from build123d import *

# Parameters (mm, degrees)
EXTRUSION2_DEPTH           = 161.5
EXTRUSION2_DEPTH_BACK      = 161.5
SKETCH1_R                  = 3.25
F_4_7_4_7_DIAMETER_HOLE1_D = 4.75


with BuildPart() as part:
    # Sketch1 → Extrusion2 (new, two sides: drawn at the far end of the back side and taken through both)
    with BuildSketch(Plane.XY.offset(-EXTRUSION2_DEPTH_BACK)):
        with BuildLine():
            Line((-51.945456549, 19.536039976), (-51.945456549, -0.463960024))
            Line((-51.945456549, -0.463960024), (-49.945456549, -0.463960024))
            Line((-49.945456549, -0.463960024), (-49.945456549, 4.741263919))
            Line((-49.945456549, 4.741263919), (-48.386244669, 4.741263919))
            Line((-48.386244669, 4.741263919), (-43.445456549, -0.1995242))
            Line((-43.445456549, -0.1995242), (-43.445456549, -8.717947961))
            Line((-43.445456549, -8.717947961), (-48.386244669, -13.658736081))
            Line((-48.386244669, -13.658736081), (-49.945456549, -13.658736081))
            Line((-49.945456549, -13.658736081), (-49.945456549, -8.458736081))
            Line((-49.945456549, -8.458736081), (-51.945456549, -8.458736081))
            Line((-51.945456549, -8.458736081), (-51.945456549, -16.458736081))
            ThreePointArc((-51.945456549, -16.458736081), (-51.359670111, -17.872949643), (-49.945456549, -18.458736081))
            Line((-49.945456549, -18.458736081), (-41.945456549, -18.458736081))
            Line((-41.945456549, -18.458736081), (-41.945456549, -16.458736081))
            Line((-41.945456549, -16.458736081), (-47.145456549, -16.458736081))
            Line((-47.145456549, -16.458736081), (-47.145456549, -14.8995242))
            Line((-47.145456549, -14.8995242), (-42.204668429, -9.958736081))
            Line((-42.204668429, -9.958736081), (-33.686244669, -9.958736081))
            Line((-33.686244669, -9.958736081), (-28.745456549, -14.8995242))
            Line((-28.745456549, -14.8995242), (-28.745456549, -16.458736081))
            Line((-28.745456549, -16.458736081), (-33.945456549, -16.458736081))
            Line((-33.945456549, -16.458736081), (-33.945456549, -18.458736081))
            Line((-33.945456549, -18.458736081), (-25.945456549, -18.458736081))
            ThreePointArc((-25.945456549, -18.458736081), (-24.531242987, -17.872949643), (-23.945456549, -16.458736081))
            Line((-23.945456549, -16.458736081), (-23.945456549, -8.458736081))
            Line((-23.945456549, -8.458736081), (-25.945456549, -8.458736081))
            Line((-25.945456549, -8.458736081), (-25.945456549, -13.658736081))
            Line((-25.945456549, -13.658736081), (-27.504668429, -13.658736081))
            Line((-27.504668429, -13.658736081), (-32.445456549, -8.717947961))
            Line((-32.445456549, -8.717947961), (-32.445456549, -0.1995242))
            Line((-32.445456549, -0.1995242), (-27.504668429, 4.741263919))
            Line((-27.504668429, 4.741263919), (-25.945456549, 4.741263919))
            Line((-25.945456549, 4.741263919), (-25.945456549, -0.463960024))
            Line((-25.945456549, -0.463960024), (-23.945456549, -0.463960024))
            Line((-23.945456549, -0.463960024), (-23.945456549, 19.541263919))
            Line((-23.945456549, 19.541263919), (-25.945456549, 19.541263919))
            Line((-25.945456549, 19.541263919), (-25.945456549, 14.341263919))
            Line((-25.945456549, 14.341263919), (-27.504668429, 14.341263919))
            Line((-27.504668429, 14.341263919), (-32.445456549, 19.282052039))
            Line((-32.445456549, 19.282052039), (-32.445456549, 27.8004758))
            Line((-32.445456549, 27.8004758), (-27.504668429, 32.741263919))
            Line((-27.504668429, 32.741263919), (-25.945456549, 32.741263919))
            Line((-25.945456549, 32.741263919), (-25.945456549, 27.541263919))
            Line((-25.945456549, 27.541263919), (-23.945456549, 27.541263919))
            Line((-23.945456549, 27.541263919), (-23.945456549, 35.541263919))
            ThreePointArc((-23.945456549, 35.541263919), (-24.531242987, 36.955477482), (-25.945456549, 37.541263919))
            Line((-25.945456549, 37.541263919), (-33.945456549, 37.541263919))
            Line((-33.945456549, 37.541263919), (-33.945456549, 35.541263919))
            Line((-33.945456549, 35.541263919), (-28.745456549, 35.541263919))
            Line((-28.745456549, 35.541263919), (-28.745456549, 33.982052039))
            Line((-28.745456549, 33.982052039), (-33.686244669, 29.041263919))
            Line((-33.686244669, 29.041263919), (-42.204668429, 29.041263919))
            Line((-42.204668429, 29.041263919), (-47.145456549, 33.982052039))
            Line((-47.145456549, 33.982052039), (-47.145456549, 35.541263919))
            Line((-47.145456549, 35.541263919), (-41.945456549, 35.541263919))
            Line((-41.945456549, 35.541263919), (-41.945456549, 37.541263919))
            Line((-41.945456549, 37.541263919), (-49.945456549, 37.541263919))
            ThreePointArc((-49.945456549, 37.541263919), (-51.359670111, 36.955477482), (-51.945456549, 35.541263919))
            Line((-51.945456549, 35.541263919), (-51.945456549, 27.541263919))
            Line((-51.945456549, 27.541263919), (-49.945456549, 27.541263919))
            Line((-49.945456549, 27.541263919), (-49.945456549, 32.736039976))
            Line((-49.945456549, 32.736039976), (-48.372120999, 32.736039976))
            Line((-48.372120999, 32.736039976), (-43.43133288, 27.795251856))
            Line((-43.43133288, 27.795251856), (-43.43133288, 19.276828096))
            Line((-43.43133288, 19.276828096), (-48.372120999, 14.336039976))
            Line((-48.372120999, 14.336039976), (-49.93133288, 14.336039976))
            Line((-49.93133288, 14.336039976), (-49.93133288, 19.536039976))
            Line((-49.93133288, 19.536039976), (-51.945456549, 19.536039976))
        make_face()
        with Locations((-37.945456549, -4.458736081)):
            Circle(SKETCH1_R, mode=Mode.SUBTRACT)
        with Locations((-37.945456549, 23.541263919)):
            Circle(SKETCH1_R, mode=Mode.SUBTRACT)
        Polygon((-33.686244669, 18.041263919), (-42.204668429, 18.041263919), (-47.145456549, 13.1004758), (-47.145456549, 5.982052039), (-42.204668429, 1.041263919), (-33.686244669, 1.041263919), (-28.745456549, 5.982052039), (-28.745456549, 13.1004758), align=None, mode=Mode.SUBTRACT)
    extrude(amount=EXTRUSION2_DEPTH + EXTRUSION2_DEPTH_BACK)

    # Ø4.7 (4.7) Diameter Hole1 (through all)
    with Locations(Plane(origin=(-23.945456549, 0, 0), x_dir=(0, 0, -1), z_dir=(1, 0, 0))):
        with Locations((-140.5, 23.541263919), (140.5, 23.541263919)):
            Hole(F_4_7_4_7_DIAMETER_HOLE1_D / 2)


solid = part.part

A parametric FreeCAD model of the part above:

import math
import FreeCAD as App
import Part
import Sketcher

V = App.Vector
Q = App.Units.Quantity

doc = App.newDocument("Part")
body = doc.addObject("PartDesign::Body", "Body")

# Sketch on XY plane
sketch1 = doc.addObject("Sketcher::SketchObject", "Sketch")
body.addObject(sketch1)
sketch1.AttachmentSupport = (doc.XY_Plane, [""])
sketch1.MapMode = "FlatFace"
sketch1.addGeometry([
    Part.LineSegment(V(-51.9, 19.5, 0), V(-51.9, -0.5, 0)),  # 0
    Part.LineSegment(V(-51.9, -0.5, 0), V(-49.9, -0.5, 0)),  # 1
    Part.LineSegment(V(-49.9, -0.5, 0), V(-49.9, 4.7, 0)),  # 2
    Part.LineSegment(V(-49.9, 4.7, 0), V(-48.4, 4.7, 0)),  # 3
    Part.LineSegment(V(-48.4, 4.7, 0), V(-43.4, -0.2, 0)),  # 4
    Part.LineSegment(V(-43.4, -0.2, 0), V(-43.4, -8.7, 0)),  # 5
    Part.LineSegment(V(-43.4, -8.7, 0), V(-48.4, -13.7, 0)),  # 6
    Part.LineSegment(V(-48.4, -13.7, 0), V(-49.9, -13.7, 0)),  # 7
    Part.LineSegment(V(-49.9, -13.7, 0), V(-49.9, -8.5, 0)),  # 8
    Part.LineSegment(V(-49.9, -8.5, 0), V(-51.9, -8.5, 0)),  # 9
    Part.LineSegment(V(-51.9, -8.5, 0), V(-51.9, -16.5, 0)),  # 10
    Part.ArcOfCircle(Part.Circle(V(-49.9, -16.5, 0), V(0, 0, 1), 2), math.radians(-180), math.radians(-90)),  # 11
    Part.LineSegment(V(-49.9, -18.5, 0), V(-41.9, -18.5, 0)),  # 12
    Part.LineSegment(V(-41.9, -18.5, 0), V(-41.9, -16.5, 0)),  # 13
    Part.LineSegment(V(-41.9, -16.5, 0), V(-47.1, -16.5, 0)),  # 14
    Part.LineSegment(V(-47.1, -16.5, 0), V(-47.1, -14.9, 0)),  # 15
    Part.LineSegment(V(-47.1, -14.9, 0), V(-42.2, -10, 0)),  # 16
    Part.LineSegment(V(-42.2, -10, 0), V(-33.7, -10, 0)),  # 17
    Part.LineSegment(V(-33.7, -10, 0), V(-28.7, -14.9, 0)),  # 18
    Part.LineSegment(V(-28.7, -14.9, 0), V(-28.7, -16.5, 0)),  # 19
    Part.LineSegment(V(-28.7, -16.5, 0), V(-33.9, -16.5, 0)),  # 20
    Part.LineSegment(V(-33.9, -16.5, 0), V(-33.9, -18.5, 0)),  # 21
    Part.LineSegment(V(-33.9, -18.5, 0), V(-25.9, -18.5, 0)),  # 22
    Part.ArcOfCircle(Part.Circle(V(-25.9, -16.5, 0), V(0, 0, 1), 2), math.radians(-90), math.radians(0)),  # 23
    Part.LineSegment(V(-23.9, -16.5, 0), V(-23.9, -8.5, 0)),  # 24
    Part.LineSegment(V(-23.9, -8.5, 0), V(-25.9, -8.5, 0)),  # 25
    Part.LineSegment(V(-25.9, -8.5, 0), V(-25.9, -13.7, 0)),  # 26
    Part.LineSegment(V(-25.9, -13.7, 0), V(-27.5, -13.7, 0)),  # 27
    Part.LineSegment(V(-27.5, -13.7, 0), V(-32.4, -8.7, 0)),  # 28
    Part.LineSegment(V(-32.4, -8.7, 0), V(-32.4, -0.2, 0)),  # 29
    Part.LineSegment(V(-32.4, -0.2, 0), V(-27.5, 4.7, 0)),  # 30
    Part.LineSegment(V(-27.5, 4.7, 0), V(-25.9, 4.7, 0)),  # 31
    Part.LineSegment(V(-25.9, 4.7, 0), V(-25.9, -0.5, 0)),  # 32
    Part.LineSegment(V(-25.9, -0.5, 0), V(-23.9, -0.5, 0)),  # 33
    Part.LineSegment(V(-23.9, -0.5, 0), V(-23.9, 19.5, 0)),  # 34
    Part.LineSegment(V(-23.9, 19.5, 0), V(-25.9, 19.5, 0)),  # 35
    Part.LineSegment(V(-25.9, 19.5, 0), V(-25.9, 14.3, 0)),  # 36
    Part.LineSegment(V(-25.9, 14.3, 0), V(-27.5, 14.3, 0)),  # 37
    Part.LineSegment(V(-27.5, 14.3, 0), V(-32.4, 19.3, 0)),  # 38
    Part.LineSegment(V(-32.4, 19.3, 0), V(-32.4, 27.8, 0)),  # 39
    Part.LineSegment(V(-32.4, 27.8, 0), V(-27.5, 32.7, 0)),  # 40
    Part.LineSegment(V(-27.5, 32.7, 0), V(-25.9, 32.7, 0)),  # 41
    Part.LineSegment(V(-25.9, 32.7, 0), V(-25.9, 27.5, 0)),  # 42
    Part.LineSegment(V(-25.9, 27.5, 0), V(-23.9, 27.5, 0)),  # 43
    Part.LineSegment(V(-23.9, 27.5, 0), V(-23.9, 35.5, 0)),  # 44
    Part.ArcOfCircle(Part.Circle(V(-25.9, 35.5, 0), V(0, 0, 1), 2), math.radians(0), math.radians(90)),  # 45
    Part.LineSegment(V(-25.9, 37.5, 0), V(-33.9, 37.5, 0)),  # 46
    Part.LineSegment(V(-33.9, 37.5, 0), V(-33.9, 35.5, 0)),  # 47
    Part.LineSegment(V(-33.9, 35.5, 0), V(-28.7, 35.5, 0)),  # 48
    Part.LineSegment(V(-28.7, 35.5, 0), V(-28.7, 34, 0)),  # 49
    Part.LineSegment(V(-28.7, 34, 0), V(-33.7, 29, 0)),  # 50
    Part.LineSegment(V(-33.7, 29, 0), V(-42.2, 29, 0)),  # 51
    Part.LineSegment(V(-42.2, 29, 0), V(-47.1, 34, 0)),  # 52
    Part.LineSegment(V(-47.1, 34, 0), V(-47.1, 35.5, 0)),  # 53
    Part.LineSegment(V(-47.1, 35.5, 0), V(-41.9, 35.5, 0)),  # 54
    Part.LineSegment(V(-41.9, 35.5, 0), V(-41.9, 37.5, 0)),  # 55
    Part.LineSegment(V(-41.9, 37.5, 0), V(-49.9, 37.5, 0)),  # 56
    Part.ArcOfCircle(Part.Circle(V(-49.9, 35.5, 0), V(0, 0, 1), 2), math.radians(90), math.radians(180)),  # 57
    Part.LineSegment(V(-51.9, 35.5, 0), V(-51.9, 27.5, 0)),  # 58
    Part.LineSegment(V(-51.9, 27.5, 0), V(-49.9, 27.5, 0)),  # 59
    Part.LineSegment(V(-49.9, 27.5, 0), V(-49.9, 32.7, 0)),  # 60
    Part.LineSegment(V(-49.9, 32.7, 0), V(-48.4, 32.7, 0)),  # 61
    Part.LineSegment(V(-48.4, 32.7, 0), V(-43.4, 27.8, 0)),  # 62
    Part.LineSegment(V(-43.4, 27.8, 0), V(-43.4, 19.3, 0)),  # 63
    Part.LineSegment(V(-43.4, 19.3, 0), V(-48.4, 14.3, 0)),  # 64
    Part.LineSegment(V(-48.4, 14.3, 0), V(-49.9, 14.3, 0)),  # 65
    Part.LineSegment(V(-49.9, 14.3, 0), V(-49.9, 19.5, 0)),  # 66
    Part.LineSegment(V(-49.9, 19.5, 0), V(-51.9, 19.5, 0)),  # 67
    Part.Circle(V(-37.9, -4.5, 0), V(0, 0, 1), 3.2),  # 68
    Part.LineSegment(V(-42.2, 18, 0), V(-33.7, 18, 0)),  # 69
    Part.LineSegment(V(-33.7, 18, 0), V(-28.7, 13.1, 0)),  # 70
    Part.LineSegment(V(-28.7, 13.1, 0), V(-28.7, 6, 0)),  # 71
    Part.LineSegment(V(-28.7, 6, 0), V(-33.7, 1, 0)),  # 72
    Part.LineSegment(V(-33.7, 1, 0), V(-42.2, 1, 0)),  # 73
    Part.LineSegment(V(-42.2, 1, 0), V(-47.1, 6, 0)),  # 74
    Part.LineSegment(V(-47.1, 6, 0), V(-47.1, 13.1, 0)),  # 75
    Part.LineSegment(V(-47.1, 13.1, 0), V(-42.2, 18, 0)),  # 76
    Part.Circle(V(-37.9, 23.5, 0), V(0, 0, 1), 3.2),  # 77
], False)
sketch1.addConstraint([
    Sketcher.Constraint("Coincident", 0, 2, 1, 1),
    Sketcher.Constraint("Coincident", 1, 2, 2, 1),
    Sketcher.Constraint("Coincident", 2, 2, 3, 1),
    Sketcher.Constraint("Coincident", 3, 2, 4, 1),
    Sketcher.Constraint("Coincident", 4, 2, 5, 1),
    Sketcher.Constraint("Coincident", 5, 2, 6, 1),
    Sketcher.Constraint("Coincident", 6, 2, 7, 1),
    Sketcher.Constraint("Coincident", 7, 2, 8, 1),
    Sketcher.Constraint("Coincident", 8, 2, 9, 1),
    Sketcher.Constraint("Coincident", 9, 2, 10, 1),
    Sketcher.Constraint("Tangent", 10, 2, 11, 1),
    Sketcher.Constraint("Tangent", 11, 2, 12, 1),
    Sketcher.Constraint("Coincident", 12, 2, 13, 1),
    Sketcher.Constraint("Coincident", 13, 2, 14, 1),
    Sketcher.Constraint("Coincident", 14, 2, 15, 1),
    Sketcher.Constraint("Coincident", 15, 2, 16, 1),
    Sketcher.Constraint("Coincident", 16, 2, 17, 1),
    Sketcher.Constraint("Coincident", 17, 2, 18, 1),
    Sketcher.Constraint("Coincident", 18, 2, 19, 1),
    Sketcher.Constraint("Coincident", 19, 2, 20, 1),
    Sketcher.Constraint("Coincident", 20, 2, 21, 1),
    Sketcher.Constraint("Coincident", 21, 2, 22, 1),
    Sketcher.Constraint("Tangent", 22, 2, 23, 1),
    Sketcher.Constraint("Tangent", 23, 2, 24, 1),
    Sketcher.Constraint("Coincident", 24, 2, 25, 1),
    Sketcher.Constraint("Coincident", 25, 2, 26, 1),
    Sketcher.Constraint("Coincident", 26, 2, 27, 1),
    Sketcher.Constraint("Coincident", 27, 2, 28, 1),
    Sketcher.Constraint("Coincident", 28, 2, 29, 1),
    Sketcher.Constraint("Coincident", 29, 2, 30, 1),
    Sketcher.Constraint("Coincident", 30, 2, 31, 1),
    Sketcher.Constraint("Coincident", 31, 2, 32, 1),
    Sketcher.Constraint("Coincident", 32, 2, 33, 1),
    Sketcher.Constraint("Coincident", 33, 2, 34, 1),
    Sketcher.Constraint("Coincident", 34, 2, 35, 1),
    Sketcher.Constraint("Coincident", 35, 2, 36, 1),
    Sketcher.Constraint("Coincident", 36, 2, 37, 1),
    Sketcher.Constraint("Coincident", 37, 2, 38, 1),
    Sketcher.Constraint("Coincident", 38, 2, 39, 1),
    Sketcher.Constraint("Coincident", 39, 2, 40, 1),
    Sketcher.Constraint("Coincident", 40, 2, 41, 1),
    Sketcher.Constraint("Coincident", 41, 2, 42, 1),
    Sketcher.Constraint("Coincident", 42, 2, 43, 1),
    Sketcher.Constraint("Coincident", 43, 2, 44, 1),
    Sketcher.Constraint("Tangent", 44, 2, 45, 1),
    Sketcher.Constraint("Tangent", 45, 2, 46, 1),
    Sketcher.Constraint("Coincident", 46, 2, 47, 1),
    Sketcher.Constraint("Coincident", 47, 2, 48, 1),
    Sketcher.Constraint("Coincident", 48, 2, 49, 1),
    Sketcher.Constraint("Coincident", 49, 2, 50, 1),
    Sketcher.Constraint("Coincident", 50, 2, 51, 1),
    Sketcher.Constraint("Coincident", 51, 2, 52, 1),
    Sketcher.Constraint("Coincident", 52, 2, 53, 1),
    Sketcher.Constraint("Coincident", 53, 2, 54, 1),
    Sketcher.Constraint("Coincident", 54, 2, 55, 1),
    Sketcher.Constraint("Coincident", 55, 2, 56, 1),
    Sketcher.Constraint("Tangent", 56, 2, 57, 1),
    Sketcher.Constraint("Tangent", 57, 2, 58, 1),
    Sketcher.Constraint("Coincident", 58, 2, 59, 1),
    Sketcher.Constraint("Coincident", 59, 2, 60, 1),
    Sketcher.Constraint("Coincident", 60, 2, 61, 1),
    Sketcher.Constraint("Coincident", 61, 2, 62, 1),
    Sketcher.Constraint("Coincident", 62, 2, 63, 1),
    Sketcher.Constraint("Coincident", 63, 2, 64, 1),
    Sketcher.Constraint("Coincident", 64, 2, 65, 1),
    Sketcher.Constraint("Coincident", 65, 2, 66, 1),
    Sketcher.Constraint("Coincident", 66, 2, 67, 1),
    Sketcher.Constraint("Coincident", 67, 2, 0, 1),
    Sketcher.Constraint("Coincident", 69, 2, 70, 1),
    Sketcher.Constraint("Coincident", 70, 2, 71, 1),
    Sketcher.Constraint("Coincident", 71, 2, 72, 1),
    Sketcher.Constraint("Coincident", 72, 2, 73, 1),
    Sketcher.Constraint("Coincident", 73, 2, 74, 1),
    Sketcher.Constraint("Coincident", 74, 2, 75, 1),
    Sketcher.Constraint("Coincident", 75, 2, 76, 1),
    Sketcher.Constraint("Coincident", 76, 2, 69, 1),
    Sketcher.Constraint("Vertical", 0),
    Sketcher.Constraint("Horizontal", 1),
    Sketcher.Constraint("Vertical", 2),
    Sketcher.Constraint("Horizontal", 3),
    Sketcher.Constraint("Vertical", 5),
    Sketcher.Constraint("Horizontal", 7),
    Sketcher.Constraint("Vertical", 8),
    Sketcher.Constraint("Horizontal", 9),
    Sketcher.Constraint("Vertical", 10),
    Sketcher.Constraint("Horizontal", 12),
    Sketcher.Constraint("Vertical", 13),
    Sketcher.Constraint("Horizontal", 14),
    Sketcher.Constraint("Vertical", 15),
    Sketcher.Constraint("Horizontal", 17),
    Sketcher.Constraint("Vertical", 19),
    Sketcher.Constraint("Horizontal", 20),
    Sketcher.Constraint("Vertical", 21),
    Sketcher.Constraint("Horizontal", 22),
    Sketcher.Constraint("Vertical", 24),
    Sketcher.Constraint("Horizontal", 25),
    Sketcher.Constraint("Vertical", 26),
    Sketcher.Constraint("Horizontal", 27),
    Sketcher.Constraint("Vertical", 29),
    Sketcher.Constraint("Horizontal", 31),
    Sketcher.Constraint("Vertical", 32),
    Sketcher.Constraint("Horizontal", 33),
    Sketcher.Constraint("Vertical", 34),
    Sketcher.Constraint("Horizontal", 35),
    Sketcher.Constraint("Vertical", 36),
    Sketcher.Constraint("Horizontal", 37),
    Sketcher.Constraint("Vertical", 39),
    Sketcher.Constraint("Horizontal", 41),
    Sketcher.Constraint("Vertical", 42),
    Sketcher.Constraint("Horizontal", 43),
    Sketcher.Constraint("Vertical", 44),
    Sketcher.Constraint("Horizontal", 46),
    Sketcher.Constraint("Vertical", 47),
    Sketcher.Constraint("Horizontal", 48),
    Sketcher.Constraint("Vertical", 49),
    Sketcher.Constraint("Horizontal", 51),
    Sketcher.Constraint("Vertical", 53),
    Sketcher.Constraint("Horizontal", 54),
    Sketcher.Constraint("Vertical", 55),
    Sketcher.Constraint("Horizontal", 56),
    Sketcher.Constraint("Vertical", 58),
    Sketcher.Constraint("Horizontal", 59),
    Sketcher.Constraint("Vertical", 60),
    Sketcher.Constraint("Horizontal", 61),
    Sketcher.Constraint("Vertical", 63),
    Sketcher.Constraint("Horizontal", 65),
    Sketcher.Constraint("Vertical", 66),
    Sketcher.Constraint("Horizontal", 67),
    Sketcher.Constraint("Horizontal", 69),
    Sketcher.Constraint("Vertical", 71),
    Sketcher.Constraint("Horizontal", 73),
    Sketcher.Constraint("Vertical", 75),
    Sketcher.Constraint("Equal", 11, 23),
    Sketcher.Constraint("Equal", 23, 45),
    Sketcher.Constraint("Equal", 45, 57),
    Sketcher.Constraint("Equal", 68, 77),
    Sketcher.Constraint("Perpendicular", 4, 6),
    Sketcher.Constraint("Parallel", 6, 16),
    Sketcher.Constraint("Perpendicular", 16, 18),
    Sketcher.Constraint("Parallel", 18, 28),
    Sketcher.Constraint("Perpendicular", 28, 30),
    Sketcher.Constraint("Perpendicular", 30, 38),
    Sketcher.Constraint("Perpendicular", 38, 40),
    Sketcher.Constraint("Parallel", 40, 50),
    Sketcher.Constraint("Perpendicular", 50, 52),
    Sketcher.Constraint("Parallel", 52, 62),
    Sketcher.Constraint("Perpendicular", 62, 64),
    Sketcher.Constraint("Perpendicular", 64, 70),
    Sketcher.Constraint("Perpendicular", 70, 72),
    Sketcher.Constraint("Perpendicular", 72, 74),
    Sketcher.Constraint("Perpendicular", 74, 76),
    Sketcher.Constraint("Horizontal", 11, 3, 23, 3),
    Sketcher.Constraint("Horizontal", 45, 3, 57, 3),
    Sketcher.Constraint("Horizontal", 10, 2, 13, 2),
    Sketcher.Constraint("Horizontal", 15, 2, 18, 2),
    Sketcher.Constraint("Horizontal", 14, 2, 19, 2),
    Sketcher.Constraint("Horizontal", 9, 2, 24, 2),
    Sketcher.Constraint("Horizontal", 7, 2, 26, 2),
    Sketcher.Constraint("Horizontal", 5, 2, 28, 2),
    Sketcher.Constraint("Horizontal", 4, 2, 29, 2),
    Sketcher.Constraint("Horizontal", 3, 2, 30, 2),
    Sketcher.Constraint("Horizontal", 1, 2, 32, 2),
    Sketcher.Constraint("Horizontal", 44, 2, 47, 2),
    Sketcher.Constraint("Horizontal", 49, 2, 52, 2),
    Sketcher.Constraint("Horizontal", 48, 2, 53, 2),
    Sketcher.Constraint("Horizontal", 43, 2, 58, 2),
    Sketcher.Constraint("Horizontal", 71, 2, 74, 2),
    Sketcher.Constraint("Horizontal", 70, 2, 75, 2),
    Sketcher.Constraint("Vertical", 23, 3, 45, 3),
    Sketcher.Constraint("Vertical", 11, 3, 57, 3),
    Sketcher.Constraint("Vertical", 68, 3, 77, 3),
    Sketcher.Constraint("Vertical", 57, 3, 1, 2),
    Sketcher.Constraint("Vertical", 3, 2, 6, 2),
    Sketcher.Constraint("Vertical", 2, 2, 7, 2),
    Sketcher.Constraint("Vertical", 0, 2, 9, 2),
    Sketcher.Constraint("Vertical", 22, 2, 25, 2),
    Sketcher.Constraint("Vertical", 27, 2, 30, 2),
    Sketcher.Constraint("Vertical", 26, 2, 31, 2),
    Sketcher.Constraint("Vertical", 24, 2, 33, 2),
    Sketcher.Constraint("Vertical", 32, 2, 35, 2),
    Sketcher.Constraint("Vertical", 30, 2, 37, 2),
    Sketcher.Constraint("Vertical", 29, 2, 38, 2),
    Sketcher.Constraint("Vertical", 37, 2, 40, 2),
    Sketcher.Constraint("Vertical", 36, 2, 41, 2),
    Sketcher.Constraint("Vertical", 21, 2, 46, 2),
    Sketcher.Constraint("Vertical", 19, 2, 48, 2),
    Sketcher.Constraint("Vertical", 17, 2, 50, 2),
    Sketcher.Constraint("Vertical", 16, 2, 51, 2),
    Sketcher.Constraint("Vertical", 13, 2, 54, 2),
    Sketcher.Constraint("Vertical", 56, 2, 59, 2),
    Sketcher.Constraint("Vertical", 61, 2, 64, 2),
    Sketcher.Constraint("Vertical", 50, 2, 69, 2),
    Sketcher.Constraint("Vertical", 49, 2, 70, 2),
    Sketcher.Constraint("Vertical", 69, 2, 72, 2),
    Sketcher.Constraint("Vertical", 51, 2, 73, 2),
    Sketcher.Constraint("Equal", 14, 20),
    Sketcher.Constraint("Equal", 12, 22),
    Sketcher.Constraint("Equal", 7, 27),
    Sketcher.Constraint("Equal", 41, 65),
    Sketcher.Constraint("Equal", 73, 5),
    Sketcher.Constraint("Equal", 54, 8),
    Sketcher.Constraint("Equal", 56, 10),
    Sketcher.Constraint("Equal", 65, 15),
    Sketcher.Constraint("Equal", 26, 36),
    Sketcher.Constraint("Equal", 29, 39),
    Sketcher.Constraint("Equal", 36, 42),
    Sketcher.Constraint("Equal", 24, 44),
    Sketcher.Constraint("Equal", 19, 49),
    Sketcher.Constraint("Equal", 39, 63),
    Sketcher.Constraint("Equal", 42, 66),
    Sketcher.Constraint("Equal", 6, 16),
    Sketcher.Constraint("Equal", 52, 62),
    Sketcher.Constraint("Radius", 11, Q("2 mm")),
    Sketcher.Constraint("Diameter", 68, Q("6.5 mm")),
    Sketcher.Constraint("DistanceX", 12, 1, 12, 2, Q("8 mm")),
    Sketcher.Constraint("DistanceY", 0, 2, 0, 1, Q("20 mm")),
    Sketcher.Constraint("DistanceX", 14, 2, 14, 1, Q("5.2 mm")),
    Sketcher.Constraint("DistanceX", 3, 1, 3, 2, Q("1.559212 mm")),
    Sketcher.Constraint("Distance", 4, Q("6.98733 mm")),
    Sketcher.Constraint("DistanceX", 17, 1, 17, 2, Q("8.518424 mm")),
    Sketcher.Constraint("DistanceX", 61, 1, 61, 2, Q("1.573336 mm")),
    Sketcher.Constraint("DistanceY", 2, 1, 2, 2, Q("5.205224 mm")),
    Sketcher.Constraint("DistanceY", 34, 1, 34, 2, Q("20.005224 mm")),
    Sketcher.Constraint("DistanceY", 71, 2, 71, 1, Q("7.118424 mm")),
    Sketcher.Constraint("DistanceY", 0, 2, -1, 1, Q("0.46396 mm")),
    Sketcher.Constraint("DistanceX", 16, 2, -1, 1, Q("42.204668 mm")),
    Sketcher.Constraint("DistanceX", 68, 3, -1, 1, Q("37.945457 mm")),
    Sketcher.Constraint("DistanceY", 68, 3, -1, 1, Q("4.458736 mm")),
    Sketcher.Constraint("DistanceY", -1, 1, 77, 3, Q("23.541264 mm")),
    Sketcher.Constraint("DistanceY", -1, 1, 69, 2, Q("18.041264 mm")),
])
pad1 = doc.addObject("PartDesign::Pad", "Pad")
body.addObject(pad1)
pad1.Profile = sketch1
pad1.Type = "TwoLengths"
pad1.Length = 161.5
pad1.Length2 = 161.5

# Sketch on YZ plane
sketch2 = doc.addObject("Sketcher::SketchObject", "Sketch001")
body.addObject(sketch2)
sketch2.AttachmentSupport = (doc.YZ_Plane, [""])
sketch2.MapMode = "FlatFace"
sketch2.AttachmentOffset = App.Placement(V(0, 0, -23.945457), App.Rotation())
sketch2.addGeometry([
    Part.Circle(V(23.5, 140.5, 0), V(0, 0, 1), 2.4),
    Part.Circle(V(23.5, -140.5, 0), V(0, 0, 1), 2.4),
], False)
sketch2.addConstraint([
    Sketcher.Constraint("Equal", 0, 1),
    Sketcher.Constraint("Symmetric", 0, 3, 1, 3, -1),
    Sketcher.Constraint("Diameter", 0, Q("4.75 mm")),
    Sketcher.Constraint("DistanceY", 1, 3, 0, 3, Q("281 mm")),
    Sketcher.Constraint("DistanceX", -1, 1, 0, 3, Q("23.541264 mm")),
])
doc.recompute()
hole = doc.addObject("PartDesign::Hole", "Hole")
body.addObject(hole)
hole.Profile = sketch2
hole.ThreadType = "None"
hole.Diameter = 4.75
hole.DepthType = "ThroughAll"

doc.recompute()
